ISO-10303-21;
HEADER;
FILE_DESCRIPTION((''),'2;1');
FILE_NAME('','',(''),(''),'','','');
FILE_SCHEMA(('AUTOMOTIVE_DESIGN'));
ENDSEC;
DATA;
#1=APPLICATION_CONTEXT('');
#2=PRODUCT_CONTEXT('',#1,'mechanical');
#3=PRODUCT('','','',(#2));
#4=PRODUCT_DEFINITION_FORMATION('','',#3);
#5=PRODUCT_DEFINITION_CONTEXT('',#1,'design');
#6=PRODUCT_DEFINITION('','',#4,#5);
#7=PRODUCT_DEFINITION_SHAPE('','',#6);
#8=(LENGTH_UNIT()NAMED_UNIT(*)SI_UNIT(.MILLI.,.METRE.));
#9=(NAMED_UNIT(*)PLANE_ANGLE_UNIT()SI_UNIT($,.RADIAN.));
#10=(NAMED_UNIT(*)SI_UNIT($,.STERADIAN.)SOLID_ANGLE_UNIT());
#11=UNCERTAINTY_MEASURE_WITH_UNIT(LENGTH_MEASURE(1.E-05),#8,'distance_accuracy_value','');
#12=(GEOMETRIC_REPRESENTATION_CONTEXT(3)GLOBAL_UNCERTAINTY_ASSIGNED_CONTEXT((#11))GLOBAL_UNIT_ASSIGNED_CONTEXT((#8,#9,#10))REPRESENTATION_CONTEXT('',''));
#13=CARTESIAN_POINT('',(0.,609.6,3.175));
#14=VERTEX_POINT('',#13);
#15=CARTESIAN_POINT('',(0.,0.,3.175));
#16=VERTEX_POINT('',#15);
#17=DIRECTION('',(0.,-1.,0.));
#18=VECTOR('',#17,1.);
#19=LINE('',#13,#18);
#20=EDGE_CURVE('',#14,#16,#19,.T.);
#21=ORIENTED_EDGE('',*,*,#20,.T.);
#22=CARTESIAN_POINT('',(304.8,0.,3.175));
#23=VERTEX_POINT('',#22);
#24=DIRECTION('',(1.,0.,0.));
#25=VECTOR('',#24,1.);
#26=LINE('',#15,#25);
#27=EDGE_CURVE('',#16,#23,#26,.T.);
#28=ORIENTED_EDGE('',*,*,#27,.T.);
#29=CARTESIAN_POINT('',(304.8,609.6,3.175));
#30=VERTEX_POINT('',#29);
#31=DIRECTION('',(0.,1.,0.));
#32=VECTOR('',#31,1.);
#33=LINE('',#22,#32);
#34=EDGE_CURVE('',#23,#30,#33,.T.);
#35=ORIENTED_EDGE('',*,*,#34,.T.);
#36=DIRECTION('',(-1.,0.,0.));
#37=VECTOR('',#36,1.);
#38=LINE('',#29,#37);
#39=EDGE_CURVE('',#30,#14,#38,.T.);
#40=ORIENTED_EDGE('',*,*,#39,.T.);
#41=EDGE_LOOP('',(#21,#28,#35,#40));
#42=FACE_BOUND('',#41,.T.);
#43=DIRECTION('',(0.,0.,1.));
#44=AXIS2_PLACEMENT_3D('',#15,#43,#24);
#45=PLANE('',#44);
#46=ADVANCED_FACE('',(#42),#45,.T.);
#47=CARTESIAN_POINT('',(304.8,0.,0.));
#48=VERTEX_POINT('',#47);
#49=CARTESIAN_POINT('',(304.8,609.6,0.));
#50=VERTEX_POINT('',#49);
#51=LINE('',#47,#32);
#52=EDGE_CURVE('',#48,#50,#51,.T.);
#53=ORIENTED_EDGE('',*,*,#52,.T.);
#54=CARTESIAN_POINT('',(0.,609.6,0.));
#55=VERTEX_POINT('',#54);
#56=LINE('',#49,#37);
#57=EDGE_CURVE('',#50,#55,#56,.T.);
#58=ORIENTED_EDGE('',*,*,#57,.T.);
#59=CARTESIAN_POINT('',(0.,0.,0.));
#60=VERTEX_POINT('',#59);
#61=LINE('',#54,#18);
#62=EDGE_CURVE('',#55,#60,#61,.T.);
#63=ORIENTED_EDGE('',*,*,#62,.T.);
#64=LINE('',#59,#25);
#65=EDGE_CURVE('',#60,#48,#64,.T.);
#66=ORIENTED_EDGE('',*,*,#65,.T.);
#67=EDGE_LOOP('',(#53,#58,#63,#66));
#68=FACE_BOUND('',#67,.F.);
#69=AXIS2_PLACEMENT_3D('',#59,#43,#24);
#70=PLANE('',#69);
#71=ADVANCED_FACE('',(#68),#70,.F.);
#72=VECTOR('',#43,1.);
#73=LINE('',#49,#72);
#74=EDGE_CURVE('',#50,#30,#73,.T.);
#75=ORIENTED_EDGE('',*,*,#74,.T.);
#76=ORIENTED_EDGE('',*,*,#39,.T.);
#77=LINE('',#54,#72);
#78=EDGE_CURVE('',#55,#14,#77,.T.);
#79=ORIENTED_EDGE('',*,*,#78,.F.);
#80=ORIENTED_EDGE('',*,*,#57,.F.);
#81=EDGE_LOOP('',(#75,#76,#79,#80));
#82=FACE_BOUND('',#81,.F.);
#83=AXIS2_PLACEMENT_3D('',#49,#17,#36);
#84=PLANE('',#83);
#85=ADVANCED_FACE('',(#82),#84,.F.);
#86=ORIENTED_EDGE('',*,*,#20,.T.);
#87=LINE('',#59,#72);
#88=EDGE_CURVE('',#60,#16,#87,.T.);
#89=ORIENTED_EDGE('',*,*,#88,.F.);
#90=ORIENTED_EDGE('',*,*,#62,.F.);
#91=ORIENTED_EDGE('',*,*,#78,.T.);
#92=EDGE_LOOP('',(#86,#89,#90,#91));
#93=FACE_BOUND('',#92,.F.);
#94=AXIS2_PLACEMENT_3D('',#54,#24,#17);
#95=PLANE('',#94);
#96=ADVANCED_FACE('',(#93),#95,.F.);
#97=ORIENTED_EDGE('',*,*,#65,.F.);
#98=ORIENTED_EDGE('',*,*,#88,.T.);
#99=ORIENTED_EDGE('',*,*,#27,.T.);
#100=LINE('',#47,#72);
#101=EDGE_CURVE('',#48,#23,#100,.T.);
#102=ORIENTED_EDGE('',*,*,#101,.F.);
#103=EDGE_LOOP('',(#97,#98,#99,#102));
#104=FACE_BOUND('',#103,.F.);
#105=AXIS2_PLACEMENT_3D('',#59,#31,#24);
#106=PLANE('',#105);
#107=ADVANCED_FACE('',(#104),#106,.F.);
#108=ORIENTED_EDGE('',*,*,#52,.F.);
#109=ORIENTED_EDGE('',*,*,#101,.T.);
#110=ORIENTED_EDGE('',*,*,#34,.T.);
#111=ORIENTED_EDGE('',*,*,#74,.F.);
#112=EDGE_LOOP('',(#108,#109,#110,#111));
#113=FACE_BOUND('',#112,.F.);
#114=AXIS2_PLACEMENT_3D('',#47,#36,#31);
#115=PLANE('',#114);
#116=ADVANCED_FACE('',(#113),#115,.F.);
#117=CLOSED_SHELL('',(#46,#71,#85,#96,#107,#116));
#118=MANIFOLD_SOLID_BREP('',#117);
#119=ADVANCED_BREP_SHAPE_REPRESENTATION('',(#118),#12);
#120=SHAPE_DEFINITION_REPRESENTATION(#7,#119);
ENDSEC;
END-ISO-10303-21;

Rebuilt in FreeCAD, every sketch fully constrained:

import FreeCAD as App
import Part
import Sketcher
Q = App.Units.Quantity

doc = App.newDocument("Part")
body = doc.addObject("PartDesign::Body", "Body")

sketch1 = body.newObject("Sketcher::SketchObject", "Sketch")
sketch1.AttachmentSupport = (doc.getObject("XY_Plane"), [""])
sketch1.MapMode = "FlatFace"
sketch1.addGeometry(Part.LineSegment(App.Vector(0, 609.6, 0), App.Vector(0, 0, 0)), False)
sketch1.addGeometry(Part.LineSegment(App.Vector(0, 0, 0), App.Vector(304.8, 0, 0)), False)
sketch1.addGeometry(Part.LineSegment(App.Vector(304.8, 0, 0), App.Vector(304.8, 609.6, 0)), False)
sketch1.addGeometry(Part.LineSegment(App.Vector(304.8, 609.6, 0), App.Vector(0, 609.6, 0)), False)
sketch1.addConstraint(Sketcher.Constraint("Coincident", 0, 2, 1, 1))
sketch1.addConstraint(Sketcher.Constraint("Coincident", 1, 2, 2, 1))
sketch1.addConstraint(Sketcher.Constraint("Coincident", 2, 2, 3, 1))
sketch1.addConstraint(Sketcher.Constraint("Coincident", 3, 2, 0, 1))
sketch1.addConstraint(Sketcher.Constraint("Vertical", 0))
sketch1.addConstraint(Sketcher.Constraint("Horizontal", 1))
sketch1.addConstraint(Sketcher.Constraint("Vertical", 2))
sketch1.addConstraint(Sketcher.Constraint("Horizontal", 3))
sketch1.addConstraint(Sketcher.Constraint("Coincident", 0, 2, -1, 1))
sketch1.addConstraint(Sketcher.Constraint("DistanceX", 1, 1, 1, 2, Q("12 in")))
sketch1.addConstraint(Sketcher.Constraint("DistanceY", 0, 2, 0, 1, Q("24 in")))
pad1 = body.newObject("PartDesign::Pad", "Pad")
pad1.Profile = sketch1
pad1.Length = Q("0.125 in")

doc.recompute()
